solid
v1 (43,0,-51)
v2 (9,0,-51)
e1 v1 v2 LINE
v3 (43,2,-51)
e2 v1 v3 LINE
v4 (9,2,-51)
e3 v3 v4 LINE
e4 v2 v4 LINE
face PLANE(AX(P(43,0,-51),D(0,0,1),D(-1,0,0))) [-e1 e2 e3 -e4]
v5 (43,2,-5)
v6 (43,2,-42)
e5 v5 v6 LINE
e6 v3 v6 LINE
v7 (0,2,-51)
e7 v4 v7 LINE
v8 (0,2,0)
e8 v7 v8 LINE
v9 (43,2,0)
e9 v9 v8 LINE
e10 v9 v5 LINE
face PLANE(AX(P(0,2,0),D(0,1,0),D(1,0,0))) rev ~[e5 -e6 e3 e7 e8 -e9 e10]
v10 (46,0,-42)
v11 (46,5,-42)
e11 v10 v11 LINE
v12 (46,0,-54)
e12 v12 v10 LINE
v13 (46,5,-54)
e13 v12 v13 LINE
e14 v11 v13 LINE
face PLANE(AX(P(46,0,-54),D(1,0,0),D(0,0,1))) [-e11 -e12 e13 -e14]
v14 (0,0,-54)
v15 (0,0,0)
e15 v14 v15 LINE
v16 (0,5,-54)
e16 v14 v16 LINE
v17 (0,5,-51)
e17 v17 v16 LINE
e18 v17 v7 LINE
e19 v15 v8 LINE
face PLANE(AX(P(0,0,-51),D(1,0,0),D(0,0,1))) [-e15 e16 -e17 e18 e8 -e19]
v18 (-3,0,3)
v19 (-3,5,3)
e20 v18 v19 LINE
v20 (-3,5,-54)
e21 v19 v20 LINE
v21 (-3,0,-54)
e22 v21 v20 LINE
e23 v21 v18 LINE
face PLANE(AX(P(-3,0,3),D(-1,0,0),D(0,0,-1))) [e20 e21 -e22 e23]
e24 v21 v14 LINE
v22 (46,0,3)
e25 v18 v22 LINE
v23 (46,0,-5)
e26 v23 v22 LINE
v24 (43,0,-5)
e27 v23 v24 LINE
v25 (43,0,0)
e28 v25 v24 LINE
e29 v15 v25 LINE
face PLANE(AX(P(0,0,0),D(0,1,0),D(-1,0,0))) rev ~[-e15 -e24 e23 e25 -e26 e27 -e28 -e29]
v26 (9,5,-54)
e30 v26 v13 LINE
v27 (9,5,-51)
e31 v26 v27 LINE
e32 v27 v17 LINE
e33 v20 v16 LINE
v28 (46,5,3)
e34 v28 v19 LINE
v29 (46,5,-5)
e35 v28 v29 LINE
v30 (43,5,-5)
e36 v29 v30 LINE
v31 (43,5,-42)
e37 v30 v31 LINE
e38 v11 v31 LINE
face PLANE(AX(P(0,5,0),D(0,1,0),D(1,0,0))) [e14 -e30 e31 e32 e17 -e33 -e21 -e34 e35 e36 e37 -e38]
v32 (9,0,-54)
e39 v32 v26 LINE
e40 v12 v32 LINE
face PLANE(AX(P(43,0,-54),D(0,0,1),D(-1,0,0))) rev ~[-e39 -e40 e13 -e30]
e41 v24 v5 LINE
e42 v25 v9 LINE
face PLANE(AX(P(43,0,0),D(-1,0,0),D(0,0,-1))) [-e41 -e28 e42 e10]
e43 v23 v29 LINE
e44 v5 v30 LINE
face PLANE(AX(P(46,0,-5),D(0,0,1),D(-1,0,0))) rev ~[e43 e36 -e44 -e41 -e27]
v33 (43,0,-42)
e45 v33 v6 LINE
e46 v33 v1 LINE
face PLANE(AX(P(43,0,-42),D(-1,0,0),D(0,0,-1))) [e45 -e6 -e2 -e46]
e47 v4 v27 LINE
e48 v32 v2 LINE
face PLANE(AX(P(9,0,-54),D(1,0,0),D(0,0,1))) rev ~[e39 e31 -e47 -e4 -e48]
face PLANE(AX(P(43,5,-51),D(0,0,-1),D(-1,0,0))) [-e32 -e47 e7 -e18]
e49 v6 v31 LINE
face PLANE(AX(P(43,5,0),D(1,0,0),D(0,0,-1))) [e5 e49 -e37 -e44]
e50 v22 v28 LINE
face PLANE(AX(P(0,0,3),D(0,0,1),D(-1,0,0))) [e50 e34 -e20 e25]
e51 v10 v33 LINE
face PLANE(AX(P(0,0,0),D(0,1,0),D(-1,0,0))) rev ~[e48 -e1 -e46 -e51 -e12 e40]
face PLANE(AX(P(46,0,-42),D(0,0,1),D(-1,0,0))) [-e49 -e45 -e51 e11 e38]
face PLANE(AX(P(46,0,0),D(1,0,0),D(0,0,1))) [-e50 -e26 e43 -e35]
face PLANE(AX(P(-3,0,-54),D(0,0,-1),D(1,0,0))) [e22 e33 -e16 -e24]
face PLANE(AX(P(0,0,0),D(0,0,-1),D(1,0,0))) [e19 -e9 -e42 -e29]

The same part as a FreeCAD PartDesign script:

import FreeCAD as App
import Part
import Sketcher
from FreeCAD import Vector

doc = App.newDocument("Part")
params = doc.addObject("Spreadsheet::Sheet", "Params")
for row, (alias, value) in enumerate([
    ("sketch1_width", "3 mm"),
    ("sketch1_width2", "43 mm"),
    ("sketch1_width3", "34 mm"),
    ("sketch1_height", "5 mm"),
    ("sketch1_height2", "9 mm"),
    ("pad1_length", "5 mm"),
    ("sketch2_width", "43 mm"),
    ("sketch2_height", "51 mm"),
    ("pad2_length", "3 mm"),
], start=1):
    params.set(f"A{row}", alias)
    params.set(f"B{row}", "=" + value)
    params.setAlias(f"B{row}", alias)

body = doc.addObject("PartDesign::Body", "Body")
body.AllowCompound = True

sketch1 = body.newObject("Sketcher::SketchObject", "Sketch")
sketch1.AttachmentSupport = (doc.getObject("XZ_Plane"), [""])
sketch1.MapMode = "FlatFace"
sketch1.addGeometry([
    Part.LineSegment(Vector(-3, 3, 0), Vector(46, 3, 0)),
    Part.LineSegment(Vector(46, 3, 0), Vector(46, -5, 0)),
    Part.LineSegment(Vector(46, -5, 0), Vector(43, -5, 0)),
    Part.LineSegment(Vector(43, -5, 0), Vector(43, 0, 0)),
    Part.LineSegment(Vector(43, 0, 0), Vector(0, 0, 0)),
    Part.LineSegment(Vector(0, 0, 0), Vector(0, -54, 0)),
    Part.LineSegment(Vector(0, -54, 0), Vector(-3, -54, 0)),
    Part.LineSegment(Vector(-3, -54, 0), Vector(-3, 3, 0)),
    Part.LineSegment(Vector(9, -54, 0), Vector(9, -51, 0)),
    Part.LineSegment(Vector(9, -51, 0), Vector(43, -51, 0)),
    Part.LineSegment(Vector(43, -51, 0), Vector(43, -42, 0)),
    Part.LineSegment(Vector(43, -42, 0), Vector(46, -42, 0)),
    Part.LineSegment(Vector(46, -42, 0), Vector(46, -54, 0)),
    Part.LineSegment(Vector(46, -54, 0), Vector(9, -54, 0)),
], False)
sketch1.addConstraint([
    Sketcher.Constraint("Coincident", 0, 2, 1, 1),
    Sketcher.Constraint("Coincident", 1, 2, 2, 1),
    Sketcher.Constraint("Coincident", 2, 2, 3, 1),
    Sketcher.Constraint("Coincident", 3, 2, 4, 1),
    Sketcher.Constraint("Coincident", 4, 2, 5, 1),
    Sketcher.Constraint("Coincident", 5, 2, 6, 1),
    Sketcher.Constraint("Coincident", 6, 2, 7, 1),
    Sketcher.Constraint("Coincident", 7, 2, 0, 1),
    Sketcher.Constraint("Coincident", 8, 2, 9, 1),
    Sketcher.Constraint("Coincident", 9, 2, 10, 1),
    Sketcher.Constraint("Coincident", 10, 2, 11, 1),
    Sketcher.Constraint("Coincident", 11, 2, 12, 1),
    Sketcher.Constraint("Coincident", 12, 2, 13, 1),
    Sketcher.Constraint("Coincident", 13, 2, 8, 1),
    Sketcher.Constraint("Horizontal", 0),
    Sketcher.Constraint("Vertical", 1),
    Sketcher.Constraint("Horizontal", 2),
    Sketcher.Constraint("Vertical", 3),
    Sketcher.Constraint("Horizontal", 4),
    Sketcher.Constraint("Vertical", 5),
    Sketcher.Constraint("Horizontal", 6),
    Sketcher.Constraint("Vertical", 7),
    Sketcher.Constraint("Vertical", 8),
    Sketcher.Constraint("Horizontal", 9),
    Sketcher.Constraint("Vertical", 10),
    Sketcher.Constraint("Horizontal", 11),
    Sketcher.Constraint("Vertical", 12),
    Sketcher.Constraint("Horizontal", 13),
    Sketcher.Constraint("Coincident", 4, 2, -1, 1),
    Sketcher.Constraint("Horizontal", 6, 2, 12, 2),
    Sketcher.Constraint("Vertical", 3, 2, 9, 2),
    Sketcher.Constraint("Vertical", 1, 2, 11, 2),
    Sketcher.Constraint("Equal", 2, 6),
    Sketcher.Constraint("Equal", 11, 8),
    Sketcher.Constraint("DistanceX", 2, 2, 2, 1, 3.0),
    Sketcher.Constraint("DistanceX", 4, 2, 4, 1, 43.0),
    Sketcher.Constraint("DistanceX", 9, 1, 9, 2, 34.0),
    Sketcher.Constraint("DistanceY", 3, 1, 3, 2, 5.0),
    Sketcher.Constraint("DistanceY", 10, 1, 10, 2, 9.0),
    Sketcher.Constraint("DistanceY", -1, 1, 0, 2, 3.0),
    Sketcher.Constraint("DistanceY", 8, 2, -1, 1, 51.0),
])
sketch1.setExpression("Constraints[34]", "Params.sketch1_width")
sketch1.setExpression("Constraints[35]", "Params.sketch1_width2")
sketch1.setExpression("Constraints[36]", "Params.sketch1_width3")
sketch1.setExpression("Constraints[37]", "Params.sketch1_height")
sketch1.setExpression("Constraints[38]", "Params.sketch1_height2")
pad1 = body.newObject("PartDesign::Pad", "Pad")
pad1.Profile = sketch1
pad1.setExpression("Length", "Params.pad1_length")
pad1.Reversed = True

sketch2 = body.newObject("Sketcher::SketchObject", "Sketch001")
sketch2.AttachmentSupport = (doc.getObject("XZ_Plane"), [""])
sketch2.MapMode = "FlatFace"
sketch2.AttachmentOffset = App.Placement(Vector(0, 0, -5), App.Rotation())
sketch2.addGeometry([
    Part.LineSegment(Vector(0, 0, 0), Vector(43, 0, 0)),
    Part.LineSegment(Vector(43, 0, 0), Vector(43, -51, 0)),
    Part.LineSegment(Vector(43, -51, 0), Vector(0, -51, 0)),
    Part.LineSegment(Vector(0, -51, 0), Vector(0, 0, 0)),
], False)
sketch2.addConstraint([
    Sketcher.Constraint("Coincident", 0, 2, 1, 1),
    Sketcher.Constraint("Coincident", 1, 2, 2, 1),
    Sketcher.Constraint("Coincident", 2, 2, 3, 1),
    Sketcher.Constraint("Coincident", 3, 2, 0, 1),
    Sketcher.Constraint("Horizontal", 0),
    Sketcher.Constraint("Vertical", 1),
    Sketcher.Constraint("Horizontal", 2),
    Sketcher.Constraint("Vertical", 3),
    Sketcher.Constraint("Coincident", 3, 2, -1, 1),
    Sketcher.Constraint("DistanceX", 0, 1, 0, 2, 43.0),
    Sketcher.Constraint("DistanceY", 1, 2, 1, 1, 51.0),
])
sketch2.setExpression("Constraints[9]", "Params.sketch2_width")
sketch2.setExpression("Constraints[10]", "Params.sketch2_height")
pad2 = body.newObject("PartDesign::Pad", "Pad001")
pad2.Profile = sketch2
pad2.setExpression("Length", "Params.pad2_length")

doc.recompute()
